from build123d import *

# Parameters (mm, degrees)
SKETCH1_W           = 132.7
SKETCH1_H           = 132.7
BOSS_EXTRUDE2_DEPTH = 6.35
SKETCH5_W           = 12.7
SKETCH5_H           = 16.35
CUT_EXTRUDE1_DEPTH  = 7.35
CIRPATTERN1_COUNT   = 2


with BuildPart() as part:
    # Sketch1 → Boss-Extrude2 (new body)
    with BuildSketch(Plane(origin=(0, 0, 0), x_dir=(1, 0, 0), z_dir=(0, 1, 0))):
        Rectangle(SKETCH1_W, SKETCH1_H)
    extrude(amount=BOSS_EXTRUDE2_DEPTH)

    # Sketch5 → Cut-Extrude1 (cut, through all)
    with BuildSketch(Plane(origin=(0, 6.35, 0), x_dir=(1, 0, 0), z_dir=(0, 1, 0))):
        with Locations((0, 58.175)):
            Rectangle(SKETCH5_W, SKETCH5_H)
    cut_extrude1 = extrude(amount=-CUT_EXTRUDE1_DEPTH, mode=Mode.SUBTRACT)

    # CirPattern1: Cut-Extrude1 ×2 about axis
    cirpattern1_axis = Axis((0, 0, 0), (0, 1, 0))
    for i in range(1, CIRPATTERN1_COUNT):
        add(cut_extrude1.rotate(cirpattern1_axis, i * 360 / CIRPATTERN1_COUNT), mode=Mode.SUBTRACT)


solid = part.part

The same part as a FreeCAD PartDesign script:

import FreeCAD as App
import Part
import Sketcher
Q = App.Units.Quantity


def add_polygon(sketch, points):
    """Adds a closed chain of lines whose ends are joined by coincident constraints."""
    first, n = sketch.GeometryCount, len(points)
    for a, b in zip(points, points[1:] + points[:1]):
        sketch.addGeometry(Part.LineSegment(App.Vector(*a, 0), App.Vector(*b, 0)), False)
    for i in range(n):
        sketch.addConstraint(Sketcher.Constraint("Coincident", first + i, 2, first + (i + 1) % n, 1))

doc = App.newDocument("Part")
body = doc.addObject("PartDesign::Body", "Body")

sketch1 = body.newObject("Sketcher::SketchObject", "Sketch")
sketch1.AttachmentSupport = (doc.getObject("XZ_Plane"), [""])
sketch1.MapMode = "FlatFace"
add_polygon(sketch1, [(-66, -66), (-66, 66), (66, 66), (66, -66)])
sketch1.addConstraint(Sketcher.Constraint("Vertical", 0))
sketch1.addConstraint(Sketcher.Constraint("Horizontal", 1))
sketch1.addConstraint(Sketcher.Constraint("Vertical", 2))
sketch1.addConstraint(Sketcher.Constraint("Horizontal", 3))
sketch1.addConstraint(Sketcher.Constraint("Symmetric", 0, 2, 2, 2, -1, 1))
sketch1.addConstraint(Sketcher.Constraint("Equal", 3, 0))
sketch1.addConstraint(Sketcher.Constraint("DistanceX", 1, 1, 1, 2, 132.7))
pad1 = body.newObject("PartDesign::Pad", "Pad")
pad1.Profile = sketch1
pad1.Length = Q("0.25 in")
pad1.Reversed = True

sketch2 = body.newObject("Sketcher::SketchObject", "Sketch001")
sketch2.AttachmentSupport = (doc.getObject("XZ_Plane"), [""])
sketch2.MapMode = "FlatFace"
sketch2.AttachmentOffset = App.Placement(App.Vector(0, 0, -0.25 * 25.4), App.Rotation())
add_polygon(sketch2, [(-6, -66), (-6, -50), (6, -50), (6, -66)])
sketch2.addConstraint(Sketcher.Constraint("Vertical", 0))
sketch2.addConstraint(Sketcher.Constraint("Horizontal", 1))
sketch2.addConstraint(Sketcher.Constraint("Vertical", 2))
sketch2.addConstraint(Sketcher.Constraint("Horizontal", 3))
sketch2.addConstraint(Sketcher.Constraint("DistanceX", 1, 1, 1, 2, Q("0.5 in")))
sketch2.addConstraint(Sketcher.Constraint("DistanceX", 0, 2, -1, 1, Q("0.25 in")))
sketch2.addConstraint(Sketcher.Constraint("DistanceY", 0, 1, 0, 2, 16.35))
sketch2.addConstraint(Sketcher.Constraint("DistanceY", 0, 2, -1, 1, 50.0))
pocket1 = body.newObject("PartDesign::Pocket", "Pocket")
pocket1.Profile = sketch2
pocket1.Type = "ThroughAll"
pocket1.Reversed = True
doc.recompute()

polarpattern = body.newObject("PartDesign::PolarPattern", "PolarPattern")
polarpattern.Originals = [pocket1]
polarpattern.Axis = (doc.getObject("Y_Axis"), [""])
polarpattern.Angle = 360
polarpattern.Occurrences = 2
body.Tip = polarpattern

doc.recompute()
